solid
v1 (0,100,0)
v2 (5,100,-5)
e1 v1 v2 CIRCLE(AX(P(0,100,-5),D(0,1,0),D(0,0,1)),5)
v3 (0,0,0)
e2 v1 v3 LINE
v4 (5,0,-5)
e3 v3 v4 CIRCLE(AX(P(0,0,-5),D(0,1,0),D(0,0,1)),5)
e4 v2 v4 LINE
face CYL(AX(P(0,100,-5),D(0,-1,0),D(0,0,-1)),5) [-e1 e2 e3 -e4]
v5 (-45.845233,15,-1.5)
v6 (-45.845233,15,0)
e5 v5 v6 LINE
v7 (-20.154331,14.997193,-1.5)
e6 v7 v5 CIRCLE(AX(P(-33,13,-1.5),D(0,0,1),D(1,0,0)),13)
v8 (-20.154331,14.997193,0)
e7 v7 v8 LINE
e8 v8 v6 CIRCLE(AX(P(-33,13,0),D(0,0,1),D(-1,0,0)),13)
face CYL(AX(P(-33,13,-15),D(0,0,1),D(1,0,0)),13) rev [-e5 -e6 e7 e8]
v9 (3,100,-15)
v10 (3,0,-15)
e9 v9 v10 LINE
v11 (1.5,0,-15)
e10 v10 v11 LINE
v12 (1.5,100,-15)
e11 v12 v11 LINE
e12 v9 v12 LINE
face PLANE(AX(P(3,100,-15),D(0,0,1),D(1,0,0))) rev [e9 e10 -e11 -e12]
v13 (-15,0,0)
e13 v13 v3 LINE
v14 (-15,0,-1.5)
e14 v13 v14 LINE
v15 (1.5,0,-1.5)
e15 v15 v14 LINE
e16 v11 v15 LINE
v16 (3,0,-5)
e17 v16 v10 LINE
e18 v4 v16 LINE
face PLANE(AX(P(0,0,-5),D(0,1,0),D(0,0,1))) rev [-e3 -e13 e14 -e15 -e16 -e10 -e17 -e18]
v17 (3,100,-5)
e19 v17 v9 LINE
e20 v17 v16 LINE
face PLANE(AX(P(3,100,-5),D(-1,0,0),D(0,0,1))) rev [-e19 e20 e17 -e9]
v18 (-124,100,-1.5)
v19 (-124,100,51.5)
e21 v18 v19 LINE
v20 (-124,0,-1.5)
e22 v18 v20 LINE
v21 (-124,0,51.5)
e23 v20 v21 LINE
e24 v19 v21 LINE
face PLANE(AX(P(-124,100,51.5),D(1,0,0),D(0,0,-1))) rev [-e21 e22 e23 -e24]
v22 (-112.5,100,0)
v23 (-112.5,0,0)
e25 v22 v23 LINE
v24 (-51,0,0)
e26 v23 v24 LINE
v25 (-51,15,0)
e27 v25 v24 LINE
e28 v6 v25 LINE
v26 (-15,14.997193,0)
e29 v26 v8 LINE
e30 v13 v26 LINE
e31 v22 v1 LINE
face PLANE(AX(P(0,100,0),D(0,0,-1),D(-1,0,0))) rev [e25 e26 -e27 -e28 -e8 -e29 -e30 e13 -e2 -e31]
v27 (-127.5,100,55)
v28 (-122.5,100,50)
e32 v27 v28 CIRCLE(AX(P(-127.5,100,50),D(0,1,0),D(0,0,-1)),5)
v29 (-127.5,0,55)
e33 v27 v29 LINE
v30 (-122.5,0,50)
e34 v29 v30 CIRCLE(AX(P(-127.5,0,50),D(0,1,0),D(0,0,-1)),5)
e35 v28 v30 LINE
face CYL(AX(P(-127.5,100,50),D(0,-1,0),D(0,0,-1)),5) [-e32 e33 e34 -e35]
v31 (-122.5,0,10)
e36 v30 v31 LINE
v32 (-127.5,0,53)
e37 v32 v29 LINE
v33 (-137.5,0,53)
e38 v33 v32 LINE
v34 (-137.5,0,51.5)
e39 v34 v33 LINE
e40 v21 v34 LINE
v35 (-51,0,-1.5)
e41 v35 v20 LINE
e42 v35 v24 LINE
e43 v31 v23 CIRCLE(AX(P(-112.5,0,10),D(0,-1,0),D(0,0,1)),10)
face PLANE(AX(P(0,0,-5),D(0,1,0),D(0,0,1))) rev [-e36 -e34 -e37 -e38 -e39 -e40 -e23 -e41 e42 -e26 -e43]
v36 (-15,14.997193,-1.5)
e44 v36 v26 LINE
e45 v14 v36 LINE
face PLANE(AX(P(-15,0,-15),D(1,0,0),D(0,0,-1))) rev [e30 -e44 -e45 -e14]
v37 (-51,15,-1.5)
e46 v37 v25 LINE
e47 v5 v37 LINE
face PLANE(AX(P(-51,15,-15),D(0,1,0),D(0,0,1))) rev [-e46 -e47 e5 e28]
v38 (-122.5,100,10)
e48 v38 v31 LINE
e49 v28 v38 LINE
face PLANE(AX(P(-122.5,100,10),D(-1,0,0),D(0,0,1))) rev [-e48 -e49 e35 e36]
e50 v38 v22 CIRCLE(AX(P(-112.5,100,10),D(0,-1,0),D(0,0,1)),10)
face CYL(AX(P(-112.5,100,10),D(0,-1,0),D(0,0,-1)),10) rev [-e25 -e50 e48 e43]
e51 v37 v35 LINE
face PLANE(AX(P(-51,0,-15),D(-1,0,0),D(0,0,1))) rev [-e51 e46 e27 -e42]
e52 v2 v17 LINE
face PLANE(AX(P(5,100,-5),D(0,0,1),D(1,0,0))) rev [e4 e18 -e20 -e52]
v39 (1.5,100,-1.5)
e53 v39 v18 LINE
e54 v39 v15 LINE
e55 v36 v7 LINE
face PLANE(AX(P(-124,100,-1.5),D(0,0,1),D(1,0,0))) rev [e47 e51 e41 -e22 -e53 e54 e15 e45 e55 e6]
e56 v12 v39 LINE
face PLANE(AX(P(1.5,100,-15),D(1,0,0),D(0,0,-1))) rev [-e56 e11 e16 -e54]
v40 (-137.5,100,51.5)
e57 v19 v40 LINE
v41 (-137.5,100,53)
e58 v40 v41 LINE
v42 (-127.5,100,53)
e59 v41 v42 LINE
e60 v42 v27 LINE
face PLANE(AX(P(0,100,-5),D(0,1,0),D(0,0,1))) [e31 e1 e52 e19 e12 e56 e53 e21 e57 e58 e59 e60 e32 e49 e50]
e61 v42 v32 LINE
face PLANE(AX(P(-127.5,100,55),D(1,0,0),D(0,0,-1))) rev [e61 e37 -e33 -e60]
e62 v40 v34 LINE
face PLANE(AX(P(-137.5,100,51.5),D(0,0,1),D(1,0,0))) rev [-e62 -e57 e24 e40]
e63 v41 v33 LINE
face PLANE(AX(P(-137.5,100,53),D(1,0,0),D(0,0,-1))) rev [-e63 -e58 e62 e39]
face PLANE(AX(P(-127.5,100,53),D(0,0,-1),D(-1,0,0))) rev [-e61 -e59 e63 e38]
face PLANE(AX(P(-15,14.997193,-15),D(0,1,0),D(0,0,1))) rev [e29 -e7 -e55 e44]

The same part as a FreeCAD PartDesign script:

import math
import FreeCAD as App
import Part
import Sketcher

V = App.Vector

doc = App.newDocument("Part")
body = doc.addObject("PartDesign::Body", "Body")

# Sketch on XZ plane
sketch1 = body.newObject("Sketcher::SketchObject", "Sketch")
sketch1.AttachmentSupport = (doc.getObject("XZ_Plane"), [""])
sketch1.MapMode = "FlatFace"
sketch1.addGeometry(Part.LineSegment(V(-112.5, 0, 0), V(0, 0, 0)), False)
sketch1.addGeometry(Part.ArcOfCircle(Part.Circle(V(0, -5, 0), V(0, 0, 1), 5), math.radians(0), math.radians(90)), False)
sketch1.addGeometry(Part.LineSegment(V(5, -5, 0), V(3, -5, 0)), False)
sketch1.addGeometry(Part.LineSegment(V(3, -5, 0), V(3, -15, 0)), False)
sketch1.addGeometry(Part.LineSegment(V(3, -15, 0), V(1.5, -15, 0)), False)
sketch1.addGeometry(Part.LineSegment(V(1.5, -15, 0), V(1.5, -1.5, 0)), False)
sketch1.addGeometry(Part.LineSegment(V(1.5, -1.5, 0), V(-124, -1.5, 0)), False)
sketch1.addGeometry(Part.LineSegment(V(-124, -1.5, 0), V(-124, 51.5, 0)), False)
sketch1.addGeometry(Part.LineSegment(V(-124, 51.5, 0), V(-137.5, 51.5, 0)), False)
sketch1.addGeometry(Part.LineSegment(V(-137.5, 51.5, 0), V(-137.5, 53, 0)), False)
sketch1.addGeometry(Part.LineSegment(V(-137.5, 53, 0), V(-127.5, 53, 0)), False)
sketch1.addGeometry(Part.LineSegment(V(-127.5, 53, 0), V(-127.5, 55, 0)), False)
sketch1.addGeometry(Part.ArcOfCircle(Part.Circle(V(-127.5, 50, 0), V(0, 0, 1), 5), math.radians(0), math.radians(90)), False)
sketch1.addGeometry(Part.LineSegment(V(-122.5, 50, 0), V(-122.5, 10, 0)), False)
sketch1.addGeometry(Part.ArcOfCircle(Part.Circle(V(-112.5, 10, 0), V(0, 0, 1), 10), math.radians(180), math.radians(270)), False)
sketch1.addConstraint(Sketcher.Constraint("Tangent", 0, 2, 1, 2))
sketch1.addConstraint(Sketcher.Constraint("Coincident", 1, 1, 2, 1))
sketch1.addConstraint(Sketcher.Constraint("Coincident", 2, 2, 3, 1))
sketch1.addConstraint(Sketcher.Constraint("Coincident", 3, 2, 4, 1))
sketch1.addConstraint(Sketcher.Constraint("Coincident", 4, 2, 5, 1))
sketch1.addConstraint(Sketcher.Constraint("Coincident", 5, 2, 6, 1))
sketch1.addConstraint(Sketcher.Constraint("Coincident", 6, 2, 7, 1))
sketch1.addConstraint(Sketcher.Constraint("Coincident", 7, 2, 8, 1))
sketch1.addConstraint(Sketcher.Constraint("Coincident", 8, 2, 9, 1))
sketch1.addConstraint(Sketcher.Constraint("Coincident", 9, 2, 10, 1))
sketch1.addConstraint(Sketcher.Constraint("Coincident", 10, 2, 11, 1))
sketch1.addConstraint(Sketcher.Constraint("Coincident", 11, 2, 12, 2))
sketch1.addConstraint(Sketcher.Constraint("Tangent", 12, 1, 13, 1))
sketch1.addConstraint(Sketcher.Constraint("Tangent", 13, 2, 14, 1))
sketch1.addConstraint(Sketcher.Constraint("Tangent", 14, 2, 0, 1))
sketch1.addConstraint(Sketcher.Constraint("Horizontal", 0))
sketch1.addConstraint(Sketcher.Constraint("Horizontal", 2))
sketch1.addConstraint(Sketcher.Constraint("Vertical", 3))
sketch1.addConstraint(Sketcher.Constraint("Horizontal", 4))
sketch1.addConstraint(Sketcher.Constraint("Vertical", 5))
sketch1.addConstraint(Sketcher.Constraint("Horizontal", 6))
sketch1.addConstraint(Sketcher.Constraint("Vertical", 7))
sketch1.addConstraint(Sketcher.Constraint("Horizontal", 8))
sketch1.addConstraint(Sketcher.Constraint("Vertical", 9))
sketch1.addConstraint(Sketcher.Constraint("Horizontal", 10))
sketch1.addConstraint(Sketcher.Constraint("Vertical", 11))
sketch1.addConstraint(Sketcher.Constraint("Vertical", 13))
sketch1.addConstraint(Sketcher.Constraint("Coincident", 0, 2, -1, 1))
sketch1.addConstraint(Sketcher.Constraint("Equal", 1, 12))
sketch1.addConstraint(Sketcher.Constraint("Vertical", 12, 3, 10, 2))
sketch1.addConstraint(Sketcher.Constraint("Equal", 10, 3))
sketch1.addConstraint(Sketcher.Constraint("Equal", 8, 5))
sketch1.addConstraint(Sketcher.Constraint("Equal", 4, 9))
sketch1.addConstraint(Sketcher.Constraint("Equal", 2, 11))
sketch1.addConstraint(Sketcher.Constraint("Radius", 1, 5.0))
sketch1.addConstraint(Sketcher.Constraint("Radius", 14, 10.0))
sketch1.addConstraint(Sketcher.Constraint("DistanceX", 2, 2, 2, 1, 2.0))
sketch1.addConstraint(Sketcher.Constraint("DistanceX", 10, 1, 10, 2, 10.0))
sketch1.addConstraint(Sketcher.Constraint("DistanceY", 7, 1, 7, 2, 53.0))
sketch1.addConstraint(Sketcher.Constraint("DistanceY", 13, 2, 13, 1, 40.0))
sketch1.addConstraint(Sketcher.Constraint("DistanceX", 0, 1, 0, 2, 112.5))
sketch1.addConstraint(Sketcher.Constraint("DistanceX", 4, 2, 4, 1, 1.5))
sketch1.addConstraint(Sketcher.Constraint("DistanceX", 6, 2, 6, 1, 125.5))
pad1 = body.newObject("PartDesign::Pad", "Pad")
pad1.Profile = sketch1
pad1.Length = 100
pad1.Reversed = True

# Sketch on XY plane
sketch2 = body.newObject("Sketcher::SketchObject", "Sketch001")
sketch2.AttachmentSupport = (doc.getObject("XY_Plane"), [""])
sketch2.MapMode = "FlatFace"
sketch2.addGeometry(Part.LineSegment(V(-51, 0, 0), V(-15, 0, 0)), False)
sketch2.addGeometry(Part.LineSegment(V(-15, 0, 0), V(-15, 15, 0)), False)
sketch2.addGeometry(Part.LineSegment(V(-15, 15, 0), V(-20, 15, 0)), False)
sketch2.addGeometry(Part.ArcOfCircle(Part.Circle(V(-33, 13, 0), V(0, 0, 1), 13), math.radians(9), math.radians(171)), False)
sketch2.addGeometry(Part.LineSegment(V(-46, 15, 0), V(-51, 15, 0)), False)
sketch2.addGeometry(Part.LineSegment(V(-51, 15, 0), V(-51, 0, 0)), False)
sketch2.addConstraint(Sketcher.Constraint("Coincident", 0, 2, 1, 1))
sketch2.addConstraint(Sketcher.Constraint("Coincident", 1, 2, 2, 1))
sketch2.addConstraint(Sketcher.Constraint("Coincident", 2, 2, 3, 1))
sketch2.addConstraint(Sketcher.Constraint("Coincident", 3, 2, 4, 1))
sketch2.addConstraint(Sketcher.Constraint("Coincident", 4, 2, 5, 1))
sketch2.addConstraint(Sketcher.Constraint("Coincident", 5, 2, 0, 1))
sketch2.addConstraint(Sketcher.Constraint("Horizontal", 0))
sketch2.addConstraint(Sketcher.Constraint("Vertical", 1))
sketch2.addConstraint(Sketcher.Constraint("Horizontal", 2))
sketch2.addConstraint(Sketcher.Constraint("Horizontal", 4))
sketch2.addConstraint(Sketcher.Constraint("Vertical", 5))
sketch2.addConstraint(Sketcher.Constraint("PointOnObject", 0, 2, -1))
sketch2.addConstraint(Sketcher.Constraint("Radius", 3, 13.0))
sketch2.addConstraint(Sketcher.Constraint("DistanceX", 0, 1, 0, 2, 36.0))
sketch2.addConstraint(Sketcher.Constraint("DistanceY", 5, 2, 5, 1, 15.0))
sketch2.addConstraint(Sketcher.Constraint("DistanceX", 3, 3, -1, 1, 33.0))
sketch2.addConstraint(Sketcher.Constraint("DistanceY", -1, 1, 3, 3, 13.0))
sketch2.addConstraint(Sketcher.Constraint("DistanceX", 0, 2, -1, 1, 15.0))
sketch2.addConstraint(Sketcher.Constraint("DistanceX", 2, 2, 2, 1, 5.154331))
pocket1 = body.newObject("PartDesign::Pocket", "Pocket")
pocket1.Profile = sketch2
pocket1.Type = "ThroughAll"

doc.recompute()
